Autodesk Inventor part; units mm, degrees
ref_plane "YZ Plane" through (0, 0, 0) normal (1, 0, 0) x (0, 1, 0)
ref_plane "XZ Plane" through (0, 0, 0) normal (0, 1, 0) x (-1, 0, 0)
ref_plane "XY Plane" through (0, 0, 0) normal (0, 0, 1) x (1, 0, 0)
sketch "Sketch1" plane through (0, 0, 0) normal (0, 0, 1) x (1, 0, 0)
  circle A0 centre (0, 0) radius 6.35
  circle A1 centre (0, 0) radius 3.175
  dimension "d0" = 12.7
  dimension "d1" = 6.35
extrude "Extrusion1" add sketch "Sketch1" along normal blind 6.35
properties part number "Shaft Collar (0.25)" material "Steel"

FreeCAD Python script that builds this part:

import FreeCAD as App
import Part
import Sketcher

V = App.Vector
Q = App.Units.Quantity

doc = App.newDocument("Part")
body = doc.addObject("PartDesign::Body", "Body")

sketch1 = doc.addObject("Sketcher::SketchObject", "Sketch")
body.addObject(sketch1)
sketch1.AttachmentSupport = (doc.XY_Plane, [""])
sketch1.MapMode = "FlatFace"
sketch1.addGeometry([
    Part.Circle(V(0, 0, 0), V(0, 0, 1), 6.3),
    Part.Circle(V(0, 0, 0), V(0, 0, 1), 3.2),
], False)
sketch1.addConstraint([
    Sketcher.Constraint("Coincident", 0, 3, -1, 1),
    Sketcher.Constraint("Coincident", 1, 3, -1, 1),
    Sketcher.Constraint("Diameter", 0, Q("0.5 in")),
    Sketcher.Constraint("Diameter", 1, Q("0.25 in")),
])
pad1 = doc.addObject("PartDesign::Pad", "Pad")
body.addObject(pad1)
pad1.Profile = sketch1
pad1.Length = Q("0.25 in")

doc.recompute()
